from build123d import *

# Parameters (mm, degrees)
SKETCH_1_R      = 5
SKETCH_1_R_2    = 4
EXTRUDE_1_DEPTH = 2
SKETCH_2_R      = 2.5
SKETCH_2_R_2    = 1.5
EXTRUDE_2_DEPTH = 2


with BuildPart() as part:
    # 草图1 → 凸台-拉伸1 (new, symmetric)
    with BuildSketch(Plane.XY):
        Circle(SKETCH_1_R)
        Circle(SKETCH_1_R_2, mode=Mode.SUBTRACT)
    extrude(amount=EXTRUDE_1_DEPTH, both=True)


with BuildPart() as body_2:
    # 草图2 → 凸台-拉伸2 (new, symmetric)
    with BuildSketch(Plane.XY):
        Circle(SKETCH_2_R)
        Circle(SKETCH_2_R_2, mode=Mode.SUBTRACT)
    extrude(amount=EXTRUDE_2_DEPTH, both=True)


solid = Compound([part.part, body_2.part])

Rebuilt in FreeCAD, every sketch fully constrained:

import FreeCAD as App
import Part
import Sketcher

V = App.Vector
Q = App.Units.Quantity

doc = App.newDocument("Part")
params = doc.addObject("Spreadsheet::Sheet", "Params")
for row, (alias, value) in enumerate([
    ("sketch1_diameter", "10 mm"),
    ("sketch1_diameter2", "8 mm"),
    ("pad1_length", "4 mm"),
    ("sketch2_diameter", "5 mm"),
    ("sketch2_diameter2", "3 mm"),
    ("pad2_length", "4 mm"),
], start=1):
    params.set(f"A{row}", alias)
    params.set(f"B{row}", "=" + value)
    params.setAlias(f"B{row}", alias)

body = doc.addObject("PartDesign::Body", "Body")

# Sketch on XY plane
sketch1 = body.newObject("Sketcher::SketchObject", "Sketch")
sketch1.AttachmentSupport = (doc.getObject("XY_Plane"), [""])
sketch1.MapMode = "FlatFace"
sketch1.addGeometry([
    Part.Circle(V(0, 0, 0), V(0, 0, 1), 5),
    Part.Circle(V(0, 0, 0), V(0, 0, 1), 4),
], False)
sketch1.addConstraint([
    Sketcher.Constraint("Coincident", 0, 3, -1, 1),
    Sketcher.Constraint("Coincident", 1, 3, -1, 1),
    Sketcher.Constraint("Diameter", 0, Q("10 mm")),
    Sketcher.Constraint("Diameter", 1, Q("8 mm")),
])
sketch1.setExpression("Constraints[2]", "Params.sketch1_diameter")
sketch1.setExpression("Constraints[3]", "Params.sketch1_diameter2")
pad1 = body.newObject("PartDesign::Pad", "Pad")
pad1.Profile = sketch1
pad1.setExpression("Length", "Params.pad1_length")
pad1.Midplane = True
body2 = doc.addObject("PartDesign::Body", "Body001")

# Sketch on XY plane
sketch2 = body2.newObject("Sketcher::SketchObject", "Sketch001")
sketch2.AttachmentSupport = (doc.getObject("XY_Plane001"), [""])
sketch2.MapMode = "FlatFace"
sketch2.addGeometry([
    Part.Circle(V(0, 0, 0), V(0, 0, 1), 2.5),
    Part.Circle(V(0, 0, 0), V(0, 0, 1), 1.5),
], False)
sketch2.addConstraint([
    Sketcher.Constraint("Coincident", 0, 3, -1, 1),
    Sketcher.Constraint("Coincident", 1, 3, -1, 1),
    Sketcher.Constraint("Diameter", 0, Q("5 mm")),
    Sketcher.Constraint("Diameter", 1, Q("3 mm")),
])
sketch2.setExpression("Constraints[2]", "Params.sketch2_diameter")
sketch2.setExpression("Constraints[3]", "Params.sketch2_diameter2")
pad2 = body2.newObject("PartDesign::Pad", "Pad001")
pad2.Profile = sketch2
pad2.setExpression("Length", "Params.pad2_length")
pad2.Midplane = True

doc.recompute()
